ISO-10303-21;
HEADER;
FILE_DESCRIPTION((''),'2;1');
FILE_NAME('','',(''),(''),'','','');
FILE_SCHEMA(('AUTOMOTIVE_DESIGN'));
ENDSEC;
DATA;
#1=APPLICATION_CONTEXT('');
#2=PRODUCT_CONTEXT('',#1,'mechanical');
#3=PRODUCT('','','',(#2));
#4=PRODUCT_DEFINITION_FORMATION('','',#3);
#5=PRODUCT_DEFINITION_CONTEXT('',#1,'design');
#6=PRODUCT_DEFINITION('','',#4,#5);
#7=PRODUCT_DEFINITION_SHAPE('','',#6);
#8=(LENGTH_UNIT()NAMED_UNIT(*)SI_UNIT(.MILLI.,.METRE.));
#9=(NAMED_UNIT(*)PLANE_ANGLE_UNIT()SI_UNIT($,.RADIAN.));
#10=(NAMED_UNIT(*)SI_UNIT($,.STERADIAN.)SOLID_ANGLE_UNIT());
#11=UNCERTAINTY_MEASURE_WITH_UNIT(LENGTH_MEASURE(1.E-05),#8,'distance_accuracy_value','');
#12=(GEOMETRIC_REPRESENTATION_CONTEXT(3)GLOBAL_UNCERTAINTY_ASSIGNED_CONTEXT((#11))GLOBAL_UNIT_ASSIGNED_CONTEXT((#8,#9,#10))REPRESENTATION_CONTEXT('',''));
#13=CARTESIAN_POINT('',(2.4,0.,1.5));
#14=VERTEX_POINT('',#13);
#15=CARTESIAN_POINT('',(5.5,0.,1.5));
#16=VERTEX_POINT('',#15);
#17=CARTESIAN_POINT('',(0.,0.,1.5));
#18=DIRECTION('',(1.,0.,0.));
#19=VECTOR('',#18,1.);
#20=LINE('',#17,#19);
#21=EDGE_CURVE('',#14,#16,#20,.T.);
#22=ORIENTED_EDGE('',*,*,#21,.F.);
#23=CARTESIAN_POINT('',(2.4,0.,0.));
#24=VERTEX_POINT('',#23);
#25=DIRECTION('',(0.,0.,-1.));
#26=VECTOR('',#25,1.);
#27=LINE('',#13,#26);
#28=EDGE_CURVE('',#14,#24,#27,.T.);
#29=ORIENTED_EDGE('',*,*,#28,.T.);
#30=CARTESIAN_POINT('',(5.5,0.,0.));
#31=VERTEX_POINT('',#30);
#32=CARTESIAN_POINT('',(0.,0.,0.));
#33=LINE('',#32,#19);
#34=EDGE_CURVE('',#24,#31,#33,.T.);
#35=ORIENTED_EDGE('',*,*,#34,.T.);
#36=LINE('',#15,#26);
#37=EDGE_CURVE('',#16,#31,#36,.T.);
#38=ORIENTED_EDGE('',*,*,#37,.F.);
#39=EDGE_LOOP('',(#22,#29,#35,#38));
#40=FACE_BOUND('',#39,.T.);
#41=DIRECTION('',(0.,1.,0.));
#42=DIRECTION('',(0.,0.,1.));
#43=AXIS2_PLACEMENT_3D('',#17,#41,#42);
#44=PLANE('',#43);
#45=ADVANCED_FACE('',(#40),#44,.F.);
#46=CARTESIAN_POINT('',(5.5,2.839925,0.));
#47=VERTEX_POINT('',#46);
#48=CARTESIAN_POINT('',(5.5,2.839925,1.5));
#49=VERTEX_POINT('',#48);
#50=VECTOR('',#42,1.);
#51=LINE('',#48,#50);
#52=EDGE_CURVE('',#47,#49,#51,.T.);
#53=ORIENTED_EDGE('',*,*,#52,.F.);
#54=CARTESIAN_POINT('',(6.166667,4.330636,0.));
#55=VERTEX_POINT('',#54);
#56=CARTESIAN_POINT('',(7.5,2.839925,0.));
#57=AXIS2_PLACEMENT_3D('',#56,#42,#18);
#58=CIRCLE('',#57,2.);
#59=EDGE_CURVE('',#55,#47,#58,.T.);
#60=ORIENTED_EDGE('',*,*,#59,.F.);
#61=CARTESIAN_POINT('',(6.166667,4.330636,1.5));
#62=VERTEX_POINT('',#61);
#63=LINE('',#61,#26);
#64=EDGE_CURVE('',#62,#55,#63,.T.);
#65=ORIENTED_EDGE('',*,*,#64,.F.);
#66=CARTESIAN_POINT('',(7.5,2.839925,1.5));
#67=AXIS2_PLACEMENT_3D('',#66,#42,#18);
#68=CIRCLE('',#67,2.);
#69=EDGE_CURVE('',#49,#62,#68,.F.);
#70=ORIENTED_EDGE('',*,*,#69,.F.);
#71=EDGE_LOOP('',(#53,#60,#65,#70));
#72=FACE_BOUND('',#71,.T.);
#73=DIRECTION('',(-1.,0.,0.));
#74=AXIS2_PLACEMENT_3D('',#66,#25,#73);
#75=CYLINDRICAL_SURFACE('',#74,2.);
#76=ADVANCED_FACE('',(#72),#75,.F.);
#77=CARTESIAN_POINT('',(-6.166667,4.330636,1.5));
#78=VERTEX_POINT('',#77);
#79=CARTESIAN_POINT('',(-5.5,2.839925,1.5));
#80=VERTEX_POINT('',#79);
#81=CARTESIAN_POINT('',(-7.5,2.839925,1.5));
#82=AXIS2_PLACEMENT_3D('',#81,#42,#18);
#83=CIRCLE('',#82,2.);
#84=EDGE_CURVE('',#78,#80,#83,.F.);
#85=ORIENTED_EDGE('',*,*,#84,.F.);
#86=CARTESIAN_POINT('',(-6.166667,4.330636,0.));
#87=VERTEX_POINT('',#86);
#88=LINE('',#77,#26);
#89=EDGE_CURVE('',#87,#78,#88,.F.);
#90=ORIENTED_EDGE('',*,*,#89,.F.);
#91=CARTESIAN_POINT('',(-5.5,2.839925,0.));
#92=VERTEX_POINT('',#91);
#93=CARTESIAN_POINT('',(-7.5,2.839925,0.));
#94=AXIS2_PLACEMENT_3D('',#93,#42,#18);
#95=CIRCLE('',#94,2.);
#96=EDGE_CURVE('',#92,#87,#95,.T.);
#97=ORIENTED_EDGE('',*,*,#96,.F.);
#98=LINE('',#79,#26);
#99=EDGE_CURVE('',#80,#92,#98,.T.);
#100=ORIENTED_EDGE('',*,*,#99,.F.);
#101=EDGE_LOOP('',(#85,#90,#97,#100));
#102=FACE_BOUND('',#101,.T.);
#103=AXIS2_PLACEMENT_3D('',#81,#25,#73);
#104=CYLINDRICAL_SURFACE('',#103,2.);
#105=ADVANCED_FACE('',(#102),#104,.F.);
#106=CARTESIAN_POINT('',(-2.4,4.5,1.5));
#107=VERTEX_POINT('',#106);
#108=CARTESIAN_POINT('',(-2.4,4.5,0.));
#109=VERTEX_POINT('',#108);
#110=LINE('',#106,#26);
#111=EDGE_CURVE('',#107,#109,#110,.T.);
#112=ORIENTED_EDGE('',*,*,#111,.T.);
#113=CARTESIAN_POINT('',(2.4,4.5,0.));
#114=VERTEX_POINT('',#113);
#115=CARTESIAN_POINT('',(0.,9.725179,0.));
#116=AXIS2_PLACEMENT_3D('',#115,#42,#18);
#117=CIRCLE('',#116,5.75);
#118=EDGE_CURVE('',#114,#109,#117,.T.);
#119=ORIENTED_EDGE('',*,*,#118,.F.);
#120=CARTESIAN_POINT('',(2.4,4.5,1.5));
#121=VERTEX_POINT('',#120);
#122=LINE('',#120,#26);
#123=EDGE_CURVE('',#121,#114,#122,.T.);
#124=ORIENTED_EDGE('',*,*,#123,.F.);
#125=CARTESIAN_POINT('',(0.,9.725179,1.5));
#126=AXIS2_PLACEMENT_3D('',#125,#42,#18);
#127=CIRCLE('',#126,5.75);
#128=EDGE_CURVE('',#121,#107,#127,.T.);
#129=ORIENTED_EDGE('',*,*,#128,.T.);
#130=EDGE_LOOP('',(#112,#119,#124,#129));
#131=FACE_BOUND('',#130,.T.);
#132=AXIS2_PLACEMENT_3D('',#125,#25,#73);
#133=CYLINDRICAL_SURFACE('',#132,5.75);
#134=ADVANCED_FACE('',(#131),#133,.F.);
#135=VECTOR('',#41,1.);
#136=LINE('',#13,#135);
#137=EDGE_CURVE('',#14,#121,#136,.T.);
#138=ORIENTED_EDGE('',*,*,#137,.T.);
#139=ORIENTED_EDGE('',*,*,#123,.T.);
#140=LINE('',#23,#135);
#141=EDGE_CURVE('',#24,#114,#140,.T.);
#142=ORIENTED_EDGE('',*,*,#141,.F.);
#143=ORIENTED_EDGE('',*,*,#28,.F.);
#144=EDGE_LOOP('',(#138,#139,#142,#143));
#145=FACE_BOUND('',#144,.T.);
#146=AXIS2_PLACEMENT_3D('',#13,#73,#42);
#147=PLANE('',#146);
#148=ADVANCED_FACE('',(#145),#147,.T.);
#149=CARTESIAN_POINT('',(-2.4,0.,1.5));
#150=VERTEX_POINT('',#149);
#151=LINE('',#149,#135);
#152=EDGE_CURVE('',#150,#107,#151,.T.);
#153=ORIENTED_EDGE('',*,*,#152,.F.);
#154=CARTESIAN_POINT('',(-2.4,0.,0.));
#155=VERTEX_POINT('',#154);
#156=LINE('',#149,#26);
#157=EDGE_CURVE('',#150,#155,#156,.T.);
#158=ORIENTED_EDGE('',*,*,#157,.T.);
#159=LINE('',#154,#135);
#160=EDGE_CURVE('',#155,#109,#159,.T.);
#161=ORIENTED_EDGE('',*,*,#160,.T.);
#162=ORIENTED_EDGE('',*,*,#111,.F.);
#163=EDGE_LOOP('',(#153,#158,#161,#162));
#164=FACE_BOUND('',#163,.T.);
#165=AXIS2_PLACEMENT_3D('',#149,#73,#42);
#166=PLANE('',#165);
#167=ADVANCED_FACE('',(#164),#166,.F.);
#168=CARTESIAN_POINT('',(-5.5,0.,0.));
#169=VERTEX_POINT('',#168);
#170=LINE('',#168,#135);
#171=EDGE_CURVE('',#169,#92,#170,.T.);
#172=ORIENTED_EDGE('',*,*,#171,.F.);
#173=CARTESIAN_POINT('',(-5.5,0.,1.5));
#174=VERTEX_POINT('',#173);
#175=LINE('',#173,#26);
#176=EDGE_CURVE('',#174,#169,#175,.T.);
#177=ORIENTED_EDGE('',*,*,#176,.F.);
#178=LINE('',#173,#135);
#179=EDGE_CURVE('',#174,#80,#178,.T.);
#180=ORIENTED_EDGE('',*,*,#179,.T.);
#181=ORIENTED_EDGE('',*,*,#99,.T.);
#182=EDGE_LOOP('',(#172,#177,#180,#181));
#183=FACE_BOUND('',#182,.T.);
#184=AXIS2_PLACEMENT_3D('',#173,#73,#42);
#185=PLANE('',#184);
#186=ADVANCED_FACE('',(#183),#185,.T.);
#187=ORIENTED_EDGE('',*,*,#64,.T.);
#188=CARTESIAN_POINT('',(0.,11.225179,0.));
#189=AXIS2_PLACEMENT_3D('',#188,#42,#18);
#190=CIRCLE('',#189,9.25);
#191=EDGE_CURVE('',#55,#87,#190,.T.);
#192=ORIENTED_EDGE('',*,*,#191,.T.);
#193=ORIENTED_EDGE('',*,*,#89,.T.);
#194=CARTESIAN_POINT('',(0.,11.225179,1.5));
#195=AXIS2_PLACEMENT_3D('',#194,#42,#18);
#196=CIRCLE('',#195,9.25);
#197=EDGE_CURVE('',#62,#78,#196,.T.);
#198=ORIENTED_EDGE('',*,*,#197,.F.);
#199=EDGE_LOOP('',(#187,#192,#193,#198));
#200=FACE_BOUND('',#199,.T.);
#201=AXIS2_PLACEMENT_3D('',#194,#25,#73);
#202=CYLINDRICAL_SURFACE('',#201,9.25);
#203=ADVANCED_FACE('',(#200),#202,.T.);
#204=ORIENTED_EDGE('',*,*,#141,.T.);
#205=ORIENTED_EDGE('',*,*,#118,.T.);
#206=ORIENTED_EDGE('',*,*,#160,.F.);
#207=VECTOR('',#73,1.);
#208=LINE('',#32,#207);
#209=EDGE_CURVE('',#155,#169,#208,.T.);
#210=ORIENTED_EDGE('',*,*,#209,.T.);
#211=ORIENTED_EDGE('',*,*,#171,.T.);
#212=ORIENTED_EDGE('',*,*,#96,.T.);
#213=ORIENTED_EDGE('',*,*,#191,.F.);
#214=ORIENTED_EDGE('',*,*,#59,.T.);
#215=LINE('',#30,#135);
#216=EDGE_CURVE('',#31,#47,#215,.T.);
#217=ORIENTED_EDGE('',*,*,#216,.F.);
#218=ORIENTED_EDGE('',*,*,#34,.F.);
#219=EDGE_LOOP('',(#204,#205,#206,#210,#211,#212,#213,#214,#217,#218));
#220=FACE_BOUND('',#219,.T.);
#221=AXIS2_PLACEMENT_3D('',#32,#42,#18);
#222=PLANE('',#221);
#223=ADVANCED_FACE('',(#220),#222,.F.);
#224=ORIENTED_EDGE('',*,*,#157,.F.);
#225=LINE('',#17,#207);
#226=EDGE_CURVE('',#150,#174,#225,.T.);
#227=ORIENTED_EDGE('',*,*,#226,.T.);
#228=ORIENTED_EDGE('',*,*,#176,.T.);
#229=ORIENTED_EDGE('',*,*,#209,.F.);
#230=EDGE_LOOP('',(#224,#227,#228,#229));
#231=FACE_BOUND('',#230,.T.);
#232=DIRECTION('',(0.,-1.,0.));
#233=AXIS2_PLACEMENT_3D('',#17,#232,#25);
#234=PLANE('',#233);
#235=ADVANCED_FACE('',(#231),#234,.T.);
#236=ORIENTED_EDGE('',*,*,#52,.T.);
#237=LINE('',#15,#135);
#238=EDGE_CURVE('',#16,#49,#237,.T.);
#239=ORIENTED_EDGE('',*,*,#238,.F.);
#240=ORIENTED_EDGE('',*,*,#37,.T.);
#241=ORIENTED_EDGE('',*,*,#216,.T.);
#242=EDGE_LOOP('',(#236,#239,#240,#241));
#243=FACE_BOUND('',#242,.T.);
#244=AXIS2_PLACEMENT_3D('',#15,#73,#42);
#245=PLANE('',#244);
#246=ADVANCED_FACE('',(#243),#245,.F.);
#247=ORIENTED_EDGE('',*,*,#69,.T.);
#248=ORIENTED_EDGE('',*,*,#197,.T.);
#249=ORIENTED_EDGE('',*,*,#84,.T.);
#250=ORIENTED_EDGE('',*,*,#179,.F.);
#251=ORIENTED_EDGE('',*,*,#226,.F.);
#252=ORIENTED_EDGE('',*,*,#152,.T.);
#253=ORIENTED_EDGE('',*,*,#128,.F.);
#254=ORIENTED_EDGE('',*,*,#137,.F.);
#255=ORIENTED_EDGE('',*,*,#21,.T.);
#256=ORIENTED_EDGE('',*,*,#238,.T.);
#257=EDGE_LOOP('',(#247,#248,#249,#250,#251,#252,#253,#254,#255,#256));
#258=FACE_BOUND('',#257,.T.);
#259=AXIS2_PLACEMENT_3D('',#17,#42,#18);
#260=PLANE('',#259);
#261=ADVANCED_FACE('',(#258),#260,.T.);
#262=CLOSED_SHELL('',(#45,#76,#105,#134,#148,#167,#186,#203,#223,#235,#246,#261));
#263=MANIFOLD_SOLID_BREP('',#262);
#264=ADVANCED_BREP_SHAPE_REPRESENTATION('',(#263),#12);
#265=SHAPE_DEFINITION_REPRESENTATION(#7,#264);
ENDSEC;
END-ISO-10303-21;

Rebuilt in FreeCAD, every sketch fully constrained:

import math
import FreeCAD as App
import Part
import Sketcher

V = App.Vector


def edges_at(feature, points):
    """Names of the edges that pass closest to the given points."""
    edges = feature.Shape.Edges
    near = lambda p: min(range(len(edges)), key=lambda i: edges[i].distToShape(Part.Vertex(*p))[0])
    return sorted({f"Edge{near(p) + 1}" for p in points})

doc = App.newDocument("Part")
body = doc.addObject("PartDesign::Body", "Body")

# Sketch on XY plane
sketch1 = body.newObject("Sketcher::SketchObject", "Sketch")
sketch1.AttachmentSupport = (doc.getObject("XY_Plane"), [""])
sketch1.MapMode = "FlatFace"
sketch1.addGeometry(Part.ArcOfCircle(Part.Circle(V(0, 9.725179, 0), V(0, 0, 1), 5.75), math.radians(-65.330001), math.radians(245.330001)), False)
sketch1.addGeometry(Part.LineSegment(V(2.4, 4.5, 0), V(2.4, 0, 0)), False)
sketch1.addGeometry(Part.LineSegment(V(2.4, 0, 0), V(5.5, 0, 0)), False)
sketch1.addGeometry(Part.LineSegment(V(5.5, 0, 0), V(5.5, 3.787942, 0)), False)
sketch1.addGeometry(Part.ArcOfCircle(Part.Circle(V(0, 11.225179, 0), V(0, 0, 1), 9.25), math.radians(-53.516263), math.radians(233.516263)), False)
sketch1.addGeometry(Part.LineSegment(V(-5.5, 3.787942, 0), V(-5.5, 0, 0)), False)
sketch1.addGeometry(Part.LineSegment(V(-5.5, 0, 0), V(-2.4, 0, 0)), False)
sketch1.addGeometry(Part.LineSegment(V(-2.4, 0, 0), V(-2.4, 4.5, 0)), False)
sketch1.addConstraint(Sketcher.Constraint("Coincident", 0, 1, 1, 1))
sketch1.addConstraint(Sketcher.Constraint("Coincident", 1, 2, 2, 1))
sketch1.addConstraint(Sketcher.Constraint("Coincident", 2, 2, 3, 1))
sketch1.addConstraint(Sketcher.Constraint("Coincident", 3, 2, 4, 1))
sketch1.addConstraint(Sketcher.Constraint("Coincident", 4, 2, 5, 1))
sketch1.addConstraint(Sketcher.Constraint("Coincident", 5, 2, 6, 1))
sketch1.addConstraint(Sketcher.Constraint("Coincident", 6, 2, 7, 1))
sketch1.addConstraint(Sketcher.Constraint("Coincident", 7, 2, 0, 2))
sketch1.addConstraint(Sketcher.Constraint("Vertical", 1))
sketch1.addConstraint(Sketcher.Constraint("Horizontal", 2))
sketch1.addConstraint(Sketcher.Constraint("Vertical", 3))
sketch1.addConstraint(Sketcher.Constraint("Vertical", 5))
sketch1.addConstraint(Sketcher.Constraint("Horizontal", 6))
sketch1.addConstraint(Sketcher.Constraint("Vertical", 7))
sketch1.addConstraint(Sketcher.Constraint("Symmetric", 2, 2, 5, 2, -1, 1))
sketch1.addConstraint(Sketcher.Constraint("Symmetric", 1, 2, 6, 2, -2))
sketch1.addConstraint(Sketcher.Constraint("PointOnObject", 0, 3, -2))
sketch1.addConstraint(Sketcher.Constraint("PointOnObject", 4, 3, -2))
sketch1.addConstraint(Sketcher.Constraint("Radius", 0, 5.75))
sketch1.addConstraint(Sketcher.Constraint("Radius", 4, 9.25))
sketch1.addConstraint(Sketcher.Constraint("DistanceX", 2, 1, 2, 2, 3.1))
sketch1.addConstraint(Sketcher.Constraint("DistanceY", 1, 2, 1, 1, 4.5))
sketch1.addConstraint(Sketcher.Constraint("DistanceX", 4, 2, 3, 2, 11.0))
sketch1.addConstraint(Sketcher.Constraint("DistanceY", 0, 3, 4, 3, 1.5))
pad1 = body.newObject("PartDesign::Pad", "Pad")
pad1.Profile = sketch1
pad1.Length = 1.5
doc.recompute()

fillet = body.newObject("PartDesign::Fillet", "Fillet")
fillet.Base = (pad1, edges_at(pad1, [(-5.5, 3.788, 0.75), (5.5, 3.788, 0.75)]))
fillet.Radius = 2

doc.recompute()
